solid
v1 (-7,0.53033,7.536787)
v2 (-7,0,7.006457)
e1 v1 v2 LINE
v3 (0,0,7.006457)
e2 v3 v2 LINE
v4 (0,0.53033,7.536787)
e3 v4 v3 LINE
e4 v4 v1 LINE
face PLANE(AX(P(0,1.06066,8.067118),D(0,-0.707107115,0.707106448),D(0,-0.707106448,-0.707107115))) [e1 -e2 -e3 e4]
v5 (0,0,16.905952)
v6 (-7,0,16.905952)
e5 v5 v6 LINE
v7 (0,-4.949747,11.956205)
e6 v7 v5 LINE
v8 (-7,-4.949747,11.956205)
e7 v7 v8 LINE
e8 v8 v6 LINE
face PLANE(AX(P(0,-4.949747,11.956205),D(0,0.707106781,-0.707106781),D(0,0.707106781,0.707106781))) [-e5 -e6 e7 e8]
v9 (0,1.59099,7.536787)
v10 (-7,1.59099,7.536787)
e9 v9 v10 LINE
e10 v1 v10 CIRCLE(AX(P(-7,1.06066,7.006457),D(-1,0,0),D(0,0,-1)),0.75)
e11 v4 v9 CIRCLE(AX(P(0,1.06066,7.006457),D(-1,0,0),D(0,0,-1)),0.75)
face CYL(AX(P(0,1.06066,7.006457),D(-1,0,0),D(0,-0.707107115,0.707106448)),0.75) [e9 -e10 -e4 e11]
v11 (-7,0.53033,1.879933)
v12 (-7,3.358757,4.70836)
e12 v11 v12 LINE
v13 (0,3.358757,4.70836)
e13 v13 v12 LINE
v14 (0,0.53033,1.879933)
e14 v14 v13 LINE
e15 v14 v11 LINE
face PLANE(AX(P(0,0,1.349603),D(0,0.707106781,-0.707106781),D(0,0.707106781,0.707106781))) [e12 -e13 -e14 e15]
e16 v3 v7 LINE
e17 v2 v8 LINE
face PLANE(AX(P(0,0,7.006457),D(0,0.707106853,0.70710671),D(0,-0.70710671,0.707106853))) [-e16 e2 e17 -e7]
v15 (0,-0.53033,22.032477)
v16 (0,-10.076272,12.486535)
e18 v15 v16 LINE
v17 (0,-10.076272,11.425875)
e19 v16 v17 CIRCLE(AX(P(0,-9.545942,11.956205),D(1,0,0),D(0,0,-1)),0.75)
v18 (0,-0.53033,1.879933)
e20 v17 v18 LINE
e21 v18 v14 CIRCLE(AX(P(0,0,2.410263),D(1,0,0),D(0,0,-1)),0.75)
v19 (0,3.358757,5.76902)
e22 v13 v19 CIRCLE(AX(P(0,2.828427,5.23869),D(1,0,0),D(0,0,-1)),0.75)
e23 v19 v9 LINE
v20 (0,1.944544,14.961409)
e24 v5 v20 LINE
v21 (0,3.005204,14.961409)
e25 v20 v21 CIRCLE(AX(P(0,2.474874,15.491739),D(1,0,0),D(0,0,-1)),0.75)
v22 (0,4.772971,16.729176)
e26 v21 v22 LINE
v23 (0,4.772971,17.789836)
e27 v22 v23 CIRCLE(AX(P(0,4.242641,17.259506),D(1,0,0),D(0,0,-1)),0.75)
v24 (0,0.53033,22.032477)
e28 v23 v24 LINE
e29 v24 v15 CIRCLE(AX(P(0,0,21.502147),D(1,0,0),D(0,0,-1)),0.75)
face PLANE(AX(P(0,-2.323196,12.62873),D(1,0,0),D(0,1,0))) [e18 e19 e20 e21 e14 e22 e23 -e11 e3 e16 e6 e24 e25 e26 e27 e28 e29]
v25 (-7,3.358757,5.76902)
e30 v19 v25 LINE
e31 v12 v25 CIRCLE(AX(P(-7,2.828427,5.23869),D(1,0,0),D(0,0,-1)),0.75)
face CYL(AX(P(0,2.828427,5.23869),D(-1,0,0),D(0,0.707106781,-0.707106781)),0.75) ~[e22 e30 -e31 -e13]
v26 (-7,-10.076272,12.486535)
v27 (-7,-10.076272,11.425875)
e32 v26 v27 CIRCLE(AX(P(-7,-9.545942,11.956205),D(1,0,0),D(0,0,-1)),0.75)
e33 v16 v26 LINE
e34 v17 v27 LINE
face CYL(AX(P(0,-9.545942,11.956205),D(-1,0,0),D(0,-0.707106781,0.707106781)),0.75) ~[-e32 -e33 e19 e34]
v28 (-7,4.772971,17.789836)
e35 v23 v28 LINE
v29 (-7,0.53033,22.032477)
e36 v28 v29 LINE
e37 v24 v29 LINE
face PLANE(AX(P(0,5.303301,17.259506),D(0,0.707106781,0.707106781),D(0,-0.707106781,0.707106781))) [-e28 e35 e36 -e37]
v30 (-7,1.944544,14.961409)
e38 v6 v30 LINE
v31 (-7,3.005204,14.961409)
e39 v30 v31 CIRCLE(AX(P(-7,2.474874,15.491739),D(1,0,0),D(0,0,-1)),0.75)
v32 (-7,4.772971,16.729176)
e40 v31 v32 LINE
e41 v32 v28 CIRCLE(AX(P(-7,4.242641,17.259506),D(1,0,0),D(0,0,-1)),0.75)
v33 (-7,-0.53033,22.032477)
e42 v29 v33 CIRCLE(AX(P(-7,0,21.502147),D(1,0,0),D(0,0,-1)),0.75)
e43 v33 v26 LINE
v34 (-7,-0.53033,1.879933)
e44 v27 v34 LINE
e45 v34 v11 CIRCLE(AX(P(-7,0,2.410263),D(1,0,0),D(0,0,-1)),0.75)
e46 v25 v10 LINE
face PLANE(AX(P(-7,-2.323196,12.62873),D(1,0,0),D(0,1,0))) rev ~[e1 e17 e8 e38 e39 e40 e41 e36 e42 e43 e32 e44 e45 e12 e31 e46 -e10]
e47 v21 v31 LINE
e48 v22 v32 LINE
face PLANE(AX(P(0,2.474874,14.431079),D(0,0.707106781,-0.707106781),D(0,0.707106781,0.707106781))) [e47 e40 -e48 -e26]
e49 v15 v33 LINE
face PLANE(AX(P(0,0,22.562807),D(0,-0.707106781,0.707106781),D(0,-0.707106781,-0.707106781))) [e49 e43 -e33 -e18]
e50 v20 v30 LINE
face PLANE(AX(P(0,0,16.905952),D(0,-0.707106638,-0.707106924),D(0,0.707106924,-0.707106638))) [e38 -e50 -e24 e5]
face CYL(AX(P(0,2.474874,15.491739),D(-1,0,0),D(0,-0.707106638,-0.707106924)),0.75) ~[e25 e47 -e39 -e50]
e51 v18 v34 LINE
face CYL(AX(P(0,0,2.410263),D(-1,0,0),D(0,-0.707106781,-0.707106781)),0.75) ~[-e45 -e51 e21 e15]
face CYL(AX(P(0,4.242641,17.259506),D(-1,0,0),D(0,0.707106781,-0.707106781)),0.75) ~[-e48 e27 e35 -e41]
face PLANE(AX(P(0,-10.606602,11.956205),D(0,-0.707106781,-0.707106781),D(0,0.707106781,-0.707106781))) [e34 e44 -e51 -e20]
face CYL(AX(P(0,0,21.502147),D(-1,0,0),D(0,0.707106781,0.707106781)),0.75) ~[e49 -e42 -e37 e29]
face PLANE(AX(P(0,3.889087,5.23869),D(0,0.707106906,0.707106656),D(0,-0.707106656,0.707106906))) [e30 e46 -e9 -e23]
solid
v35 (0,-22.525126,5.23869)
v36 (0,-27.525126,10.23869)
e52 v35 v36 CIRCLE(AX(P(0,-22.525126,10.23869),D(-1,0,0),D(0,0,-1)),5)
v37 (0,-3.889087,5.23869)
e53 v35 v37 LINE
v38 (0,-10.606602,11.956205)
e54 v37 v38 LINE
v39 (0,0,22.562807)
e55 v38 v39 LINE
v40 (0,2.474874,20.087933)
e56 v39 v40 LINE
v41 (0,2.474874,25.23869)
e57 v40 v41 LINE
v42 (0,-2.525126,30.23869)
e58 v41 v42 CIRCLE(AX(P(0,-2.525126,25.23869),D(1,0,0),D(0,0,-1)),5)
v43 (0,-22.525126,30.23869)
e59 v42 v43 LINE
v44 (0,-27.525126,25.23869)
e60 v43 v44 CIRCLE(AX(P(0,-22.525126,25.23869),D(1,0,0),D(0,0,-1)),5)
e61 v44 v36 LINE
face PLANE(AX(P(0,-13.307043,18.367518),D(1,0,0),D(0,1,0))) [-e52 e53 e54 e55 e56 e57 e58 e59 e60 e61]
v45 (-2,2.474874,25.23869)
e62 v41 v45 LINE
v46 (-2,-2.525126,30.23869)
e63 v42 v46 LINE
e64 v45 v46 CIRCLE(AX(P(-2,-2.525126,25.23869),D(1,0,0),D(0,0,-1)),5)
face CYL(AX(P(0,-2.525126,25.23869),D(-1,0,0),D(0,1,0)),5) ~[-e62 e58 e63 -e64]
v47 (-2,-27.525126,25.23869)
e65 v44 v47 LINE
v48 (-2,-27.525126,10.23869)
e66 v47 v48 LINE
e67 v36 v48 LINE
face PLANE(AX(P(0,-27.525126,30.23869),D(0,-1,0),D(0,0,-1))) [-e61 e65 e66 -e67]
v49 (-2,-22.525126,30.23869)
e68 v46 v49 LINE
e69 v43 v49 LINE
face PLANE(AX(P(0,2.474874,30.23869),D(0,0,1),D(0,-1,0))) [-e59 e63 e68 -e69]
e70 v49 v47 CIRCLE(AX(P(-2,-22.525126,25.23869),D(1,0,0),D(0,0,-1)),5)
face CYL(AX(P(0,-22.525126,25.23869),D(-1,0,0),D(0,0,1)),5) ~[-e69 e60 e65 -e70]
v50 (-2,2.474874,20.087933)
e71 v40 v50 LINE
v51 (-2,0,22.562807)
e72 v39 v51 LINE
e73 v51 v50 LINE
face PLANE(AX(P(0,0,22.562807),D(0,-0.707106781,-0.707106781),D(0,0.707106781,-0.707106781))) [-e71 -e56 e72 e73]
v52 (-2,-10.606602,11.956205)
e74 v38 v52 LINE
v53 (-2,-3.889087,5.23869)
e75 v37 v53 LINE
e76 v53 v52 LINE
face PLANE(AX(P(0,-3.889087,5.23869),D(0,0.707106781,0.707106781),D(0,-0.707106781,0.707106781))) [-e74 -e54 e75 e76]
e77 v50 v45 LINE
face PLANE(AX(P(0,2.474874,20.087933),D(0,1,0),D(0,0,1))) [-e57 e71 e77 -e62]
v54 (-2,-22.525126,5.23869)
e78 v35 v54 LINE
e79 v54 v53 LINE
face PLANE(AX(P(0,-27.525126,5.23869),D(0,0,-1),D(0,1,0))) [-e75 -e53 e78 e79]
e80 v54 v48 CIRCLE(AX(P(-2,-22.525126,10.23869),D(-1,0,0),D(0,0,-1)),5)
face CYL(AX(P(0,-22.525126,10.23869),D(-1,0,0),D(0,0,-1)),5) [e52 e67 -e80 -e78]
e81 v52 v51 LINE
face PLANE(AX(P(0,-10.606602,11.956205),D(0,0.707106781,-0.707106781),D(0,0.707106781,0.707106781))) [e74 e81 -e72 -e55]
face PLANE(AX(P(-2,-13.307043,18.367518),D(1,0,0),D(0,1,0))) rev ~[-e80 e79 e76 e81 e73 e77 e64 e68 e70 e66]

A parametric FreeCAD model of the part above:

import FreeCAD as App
import Part
import Sketcher
Q = App.Units.Quantity


def edges_at(feature, points):
    """Names of the edges that pass closest to the given points."""
    edges = feature.Shape.Edges
    near = lambda p: min(range(len(edges)), key=lambda i: edges[i].distToShape(Part.Vertex(*p))[0])
    return sorted({f"Edge{near(p) + 1}" for p in points})


def add_polygon(sketch, points):
    """Adds a closed chain of lines whose ends are joined by coincident constraints."""
    first, n = sketch.GeometryCount, len(points)
    for a, b in zip(points, points[1:] + points[:1]):
        sketch.addGeometry(Part.LineSegment(App.Vector(*a, 0), App.Vector(*b, 0)), False)
    for i in range(n):
        sketch.addConstraint(Sketcher.Constraint("Coincident", first + i, 2, first + (i + 1) % n, 1))

doc = App.newDocument("Part")
params = doc.addObject("Spreadsheet::Sheet", "Params")
for row, (alias, value) in enumerate([
    ("sketch1_length", "7 mm"),
    ("sketch1_length2", "4 mm"),
    ("sketch1_length3", "1.5 mm"),
    ("sketch1_length4", "3.5 mm"),
    ("pad1_length", "7 mm"),
    ("fillet_radius", "0.75 mm"),
    ("sketch2_width", "30 mm"),
    ("sketch2_height", "25 mm"),
    ("sketch2_length", "15 mm"),
    ("sketch2_length2", "9.500001 mm"),
    ("sketch2_length3", "3.5 mm"),
    ("pad2_length", "2 mm"),
    ("fillet2_radius", "5 mm"),
], start=1):
    params.set(f"A{row}", alias)
    params.set(f"B{row}", "=" + value)
    params.setAlias(f"B{row}", alias)

body = doc.addObject("PartDesign::Body", "Body")

sketch1 = doc.addObject("Sketcher::SketchObject", "Sketch")
body.addObject(sketch1)
sketch1.AttachmentSupport = (doc.YZ_Plane, [""])
sketch1.MapMode = "FlatFace"
add_polygon(sketch1, [(1.1, 8.1), (0, 7), (-4.9, 12), (0, 16.9), (2.5, 14.4), (5.3, 17.3), (0, 22.6), (-10.6, 12), (0, 1.3), (3.9, 5.2)])
sketch1.addConstraint([
    Sketcher.Constraint("PointOnObject", 0, 2, -2),
    Sketcher.Constraint("PointOnObject", 2, 2, -2),
    Sketcher.Constraint("PointOnObject", 5, 2, -2),
    Sketcher.Constraint("PointOnObject", 7, 2, -2),
    Sketcher.Constraint("Perpendicular", 0, 1),
    Sketcher.Constraint("Perpendicular", 1, 2),
    Sketcher.Constraint("Perpendicular", 2, 3),
    Sketcher.Constraint("Perpendicular", 3, 4),
    Sketcher.Constraint("Perpendicular", 4, 5),
    Sketcher.Constraint("Perpendicular", 5, 6),
    Sketcher.Constraint("Perpendicular", 6, 7),
    Sketcher.Constraint("Perpendicular", 7, 8),
    Sketcher.Constraint("Perpendicular", 8, 9),
    Sketcher.Constraint("Horizontal", 1, 2, 6, 2),
    Sketcher.Constraint("Equal", 1, 2),
    Sketcher.Constraint("Distance", 1, Q("7 mm")),
    Sketcher.Constraint("Distance", 4, Q("4 mm")),
    Sketcher.Constraint("Distance", 0, Q("1.5 mm")),
    Sketcher.Constraint("Distance", 3, Q("3.5 mm")),
    Sketcher.Constraint("DistanceY", -1, 1, 2, 2, Q("16.905952 mm")),
])
sketch1.setExpression("Constraints[25]", "Params.sketch1_length")
sketch1.setExpression("Constraints[26]", "Params.sketch1_length2")
sketch1.setExpression("Constraints[27]", "Params.sketch1_length3")
sketch1.setExpression("Constraints[28]", "Params.sketch1_length4")
pad1 = doc.addObject("PartDesign::Pad", "Pad")
body.addObject(pad1)
pad1.Profile = sketch1
pad1.setExpression("Length", "Params.pad1_length")
pad1.Reversed = True
doc.recompute()

fillet = doc.addObject("PartDesign::Fillet", "Fillet")
body.addObject(fillet)
fillet.Base = (pad1, edges_at(pad1, [
    (-3.5, 2.475, 14.431),
    (-3.5, 1.061, 8.067),
    (-3.5, 0, 1.35),
    (-3.5, 3.889, 5.239),
    (-3.5, 5.303, 17.26),
    (-3.5, 0, 22.563),
    (-3.5, -10.607, 11.956),
]))
fillet.setExpression("Radius", "Params.fillet_radius")
body2 = doc.addObject("PartDesign::Body", "Body001")

sketch2 = doc.addObject("Sketcher::SketchObject", "Sketch001")
body2.addObject(sketch2)
sketch2.AttachmentSupport = (doc.getObject("YZ_Plane001"), [""])
sketch2.MapMode = "FlatFace"
add_polygon(sketch2, [(-27.5, 5.2), (-3.9, 5.2), (-10.6, 12), (0, 22.6), (2.5, 20.1), (2.5, 30.2), (-27.5, 30.2)])
sketch2.addConstraint([
    Sketcher.Constraint("Horizontal", 0),
    Sketcher.Constraint("Vertical", 4),
    Sketcher.Constraint("Horizontal", 5),
    Sketcher.Constraint("Vertical", 6),
    Sketcher.Constraint("PointOnObject", 2, 2, -2),
    Sketcher.Constraint("Perpendicular", 1, 2),
    Sketcher.Constraint("Perpendicular", 2, 3),
    Sketcher.Constraint("DistanceX", 5, 2, 5, 1, Q("30 mm")),
    Sketcher.Constraint("DistanceY", 6, 2, 6, 1, Q("25 mm")),
    Sketcher.Constraint("Angle", 1, Q("135 deg")),
    Sketcher.Constraint("Distance", 2, Q("15 mm")),
    Sketcher.Constraint("Distance", 1, Q("9.500001 mm")),
    Sketcher.Constraint("Distance", 3, Q("3.5 mm")),
    Sketcher.Constraint("DistanceY", -1, 1, 0, 2, Q("5.23869 mm")),
])
sketch2.setExpression("Constraints[14]", "Params.sketch2_width")
sketch2.setExpression("Constraints[15]", "Params.sketch2_height")
sketch2.setExpression("Constraints[17]", "Params.sketch2_length")
sketch2.setExpression("Constraints[18]", "Params.sketch2_length2")
sketch2.setExpression("Constraints[19]", "Params.sketch2_length3")
pad2 = doc.addObject("PartDesign::Pad", "Pad001")
body2.addObject(pad2)
pad2.Profile = sketch2
pad2.setExpression("Length", "Params.pad2_length")
pad2.Reversed = True
doc.recompute()

fillet2 = doc.addObject("PartDesign::Fillet", "Fillet001")
body2.addObject(fillet2)
fillet2.Base = (pad2, edges_at(pad2, [(-1, 2.475, 30.239), (-1, -27.525, 30.239), (-1, -27.525, 5.239)]))
fillet2.setExpression("Radius", "Params.fillet2_radius")

doc.recompute()
